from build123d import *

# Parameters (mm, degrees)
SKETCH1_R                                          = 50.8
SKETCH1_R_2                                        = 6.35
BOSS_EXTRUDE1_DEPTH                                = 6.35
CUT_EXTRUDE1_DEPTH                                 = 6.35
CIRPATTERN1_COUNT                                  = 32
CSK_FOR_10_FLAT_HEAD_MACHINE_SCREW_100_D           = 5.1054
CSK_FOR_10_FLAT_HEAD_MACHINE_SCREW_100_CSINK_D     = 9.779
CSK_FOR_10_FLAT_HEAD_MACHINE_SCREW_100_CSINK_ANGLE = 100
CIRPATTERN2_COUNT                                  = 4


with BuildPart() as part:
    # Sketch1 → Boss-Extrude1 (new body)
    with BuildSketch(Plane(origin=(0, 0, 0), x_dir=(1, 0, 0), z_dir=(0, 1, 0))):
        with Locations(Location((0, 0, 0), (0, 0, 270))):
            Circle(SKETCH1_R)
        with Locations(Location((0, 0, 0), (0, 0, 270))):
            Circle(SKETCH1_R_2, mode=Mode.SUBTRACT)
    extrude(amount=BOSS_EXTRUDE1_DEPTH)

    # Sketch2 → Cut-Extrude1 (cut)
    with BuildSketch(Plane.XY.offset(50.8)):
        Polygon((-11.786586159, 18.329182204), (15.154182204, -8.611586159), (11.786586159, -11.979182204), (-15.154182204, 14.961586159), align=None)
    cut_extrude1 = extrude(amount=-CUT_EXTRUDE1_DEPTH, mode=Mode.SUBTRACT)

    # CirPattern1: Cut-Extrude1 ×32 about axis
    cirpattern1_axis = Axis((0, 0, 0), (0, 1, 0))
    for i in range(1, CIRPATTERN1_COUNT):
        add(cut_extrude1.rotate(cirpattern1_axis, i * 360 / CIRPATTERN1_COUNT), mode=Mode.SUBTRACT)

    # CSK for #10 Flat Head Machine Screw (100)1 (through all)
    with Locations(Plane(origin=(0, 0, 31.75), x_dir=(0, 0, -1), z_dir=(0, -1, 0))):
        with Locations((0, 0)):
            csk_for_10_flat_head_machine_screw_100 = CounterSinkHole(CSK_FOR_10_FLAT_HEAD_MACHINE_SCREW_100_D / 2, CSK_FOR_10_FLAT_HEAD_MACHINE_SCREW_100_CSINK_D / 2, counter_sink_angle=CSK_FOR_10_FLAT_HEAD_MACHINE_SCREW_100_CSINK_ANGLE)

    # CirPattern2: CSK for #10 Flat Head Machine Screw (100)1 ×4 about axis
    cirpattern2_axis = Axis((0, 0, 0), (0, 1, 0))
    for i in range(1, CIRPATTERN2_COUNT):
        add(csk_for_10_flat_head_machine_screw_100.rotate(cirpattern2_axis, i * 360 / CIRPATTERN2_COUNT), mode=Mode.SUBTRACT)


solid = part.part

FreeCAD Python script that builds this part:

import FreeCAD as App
import Part
import Sketcher
from FreeCAD import Vector
Q = App.Units.Quantity


def add_polygon(sketch, points):
    """Adds a closed chain of lines whose ends are joined by coincident constraints."""
    first, n = sketch.GeometryCount, len(points)
    for a, b in zip(points, points[1:] + points[:1]):
        sketch.addGeometry(Part.LineSegment(App.Vector(*a, 0), App.Vector(*b, 0)), False)
    for i in range(n):
        sketch.addConstraint(Sketcher.Constraint("Coincident", first + i, 2, first + (i + 1) % n, 1))

doc = App.newDocument("Part")
body = doc.addObject("PartDesign::Body", "Body")

# Sketch on XZ plane
sketch1 = body.newObject("Sketcher::SketchObject", "Sketch")
sketch1.AttachmentSupport = (doc.getObject("XZ_Plane"), [""])
sketch1.MapMode = "FlatFace"
sketch1.addGeometry([
    Part.Circle(Vector(0, 0, 0), Vector(0, 0, 1), 51),
    Part.Circle(Vector(0, 0, 0), Vector(0, 0, 1), 6),
], False)
sketch1.addConstraint([
    Sketcher.Constraint("Coincident", 0, 3, -1, 1),
    Sketcher.Constraint("Coincident", 1, 3, -1, 1),
    Sketcher.Constraint("Diameter", 0, Q("4 in")),
    Sketcher.Constraint("Diameter", 1, Q("0.5 in")),
])
pad1 = body.newObject("PartDesign::Pad", "Pad")
pad1.Profile = sketch1
pad1.Length = Q("0.25 in")
pad1.Reversed = True

# Sketch on XY plane
sketch2 = body.newObject("Sketcher::SketchObject", "Sketch001")
sketch2.AttachmentSupport = (doc.getObject("XY_Plane"), [""])
sketch2.MapMode = "FlatFace"
sketch2.AttachmentOffset = App.Placement(Vector(0, 0, 2 * 25.4), App.Rotation())
add_polygon(sketch2, [(15.2, -8.6), (-11.8, 18.3), (-15.2, 15), (11.8, -12)])  # lines 0-3
sketch2.addConstraint([
    Sketcher.Constraint("Perpendicular", 0, 1),
    Sketcher.Constraint("Perpendicular", 1, 2),
    Sketcher.Constraint("Perpendicular", 2, 3),
    Sketcher.Constraint("Angle", 0, Q("135 deg")),
    Sketcher.Constraint("Distance", 0, Q("1.5 in")),
    Sketcher.Constraint("Distance", 1, Q("0.1875 in")),
    Sketcher.Constraint("DistanceX", 0, 2, -1, 1, 11.786586),
    Sketcher.Constraint("DistanceY", -1, 1, 0, 2, 18.329182),
])
pocket1 = body.newObject("PartDesign::Pocket", "Pocket")
pocket1.Profile = sketch2
pocket1.Length = Q("0.25 in")
doc.recompute()

polarpattern = body.newObject("PartDesign::PolarPattern", "PolarPattern")
polarpattern.Originals = [pocket1]
polarpattern.Axis = (doc.getObject("Y_Axis"), [""])
polarpattern.Angle = 360
polarpattern.Occurrences = 32
body.Tip = polarpattern

# Sketch on XZ plane
sketch3 = body.newObject("Sketcher::SketchObject", "Sketch002")
sketch3.AttachmentSupport = (doc.getObject("XZ_Plane"), [""])
sketch3.MapMode = "FlatFace"
sketch3.addGeometry(Part.Circle(Vector(0, 31.8, 0), Vector(0, 0, 1), 2.6), False)
sketch3.addConstraint([
    Sketcher.Constraint("PointOnObject", 0, 3, -2),
    Sketcher.Constraint("Diameter", 0, Q("0.201 in")),
    Sketcher.Constraint("DistanceY", -1, 1, 0, 3, Q("1.25 in")),
])
doc.recompute()
hole = body.newObject("PartDesign::Hole", "Hole")
hole.Profile = sketch3
hole.ThreadType = "None"
hole.Diameter = Q("0.201 in")
hole.DepthType = "ThroughAll"
hole.HoleCutType = "Countersink"
hole.HoleCutDiameter = Q("0.385 in")
hole.HoleCutCountersinkAngle = 100
doc.recompute()

polarpattern2 = body.newObject("PartDesign::PolarPattern", "PolarPattern001")
polarpattern2.Originals = [hole]
polarpattern2.Axis = (doc.getObject("Y_Axis"), [""])
polarpattern2.Angle = 360
polarpattern2.Occurrences = 4
body.Tip = polarpattern2

doc.recompute()
